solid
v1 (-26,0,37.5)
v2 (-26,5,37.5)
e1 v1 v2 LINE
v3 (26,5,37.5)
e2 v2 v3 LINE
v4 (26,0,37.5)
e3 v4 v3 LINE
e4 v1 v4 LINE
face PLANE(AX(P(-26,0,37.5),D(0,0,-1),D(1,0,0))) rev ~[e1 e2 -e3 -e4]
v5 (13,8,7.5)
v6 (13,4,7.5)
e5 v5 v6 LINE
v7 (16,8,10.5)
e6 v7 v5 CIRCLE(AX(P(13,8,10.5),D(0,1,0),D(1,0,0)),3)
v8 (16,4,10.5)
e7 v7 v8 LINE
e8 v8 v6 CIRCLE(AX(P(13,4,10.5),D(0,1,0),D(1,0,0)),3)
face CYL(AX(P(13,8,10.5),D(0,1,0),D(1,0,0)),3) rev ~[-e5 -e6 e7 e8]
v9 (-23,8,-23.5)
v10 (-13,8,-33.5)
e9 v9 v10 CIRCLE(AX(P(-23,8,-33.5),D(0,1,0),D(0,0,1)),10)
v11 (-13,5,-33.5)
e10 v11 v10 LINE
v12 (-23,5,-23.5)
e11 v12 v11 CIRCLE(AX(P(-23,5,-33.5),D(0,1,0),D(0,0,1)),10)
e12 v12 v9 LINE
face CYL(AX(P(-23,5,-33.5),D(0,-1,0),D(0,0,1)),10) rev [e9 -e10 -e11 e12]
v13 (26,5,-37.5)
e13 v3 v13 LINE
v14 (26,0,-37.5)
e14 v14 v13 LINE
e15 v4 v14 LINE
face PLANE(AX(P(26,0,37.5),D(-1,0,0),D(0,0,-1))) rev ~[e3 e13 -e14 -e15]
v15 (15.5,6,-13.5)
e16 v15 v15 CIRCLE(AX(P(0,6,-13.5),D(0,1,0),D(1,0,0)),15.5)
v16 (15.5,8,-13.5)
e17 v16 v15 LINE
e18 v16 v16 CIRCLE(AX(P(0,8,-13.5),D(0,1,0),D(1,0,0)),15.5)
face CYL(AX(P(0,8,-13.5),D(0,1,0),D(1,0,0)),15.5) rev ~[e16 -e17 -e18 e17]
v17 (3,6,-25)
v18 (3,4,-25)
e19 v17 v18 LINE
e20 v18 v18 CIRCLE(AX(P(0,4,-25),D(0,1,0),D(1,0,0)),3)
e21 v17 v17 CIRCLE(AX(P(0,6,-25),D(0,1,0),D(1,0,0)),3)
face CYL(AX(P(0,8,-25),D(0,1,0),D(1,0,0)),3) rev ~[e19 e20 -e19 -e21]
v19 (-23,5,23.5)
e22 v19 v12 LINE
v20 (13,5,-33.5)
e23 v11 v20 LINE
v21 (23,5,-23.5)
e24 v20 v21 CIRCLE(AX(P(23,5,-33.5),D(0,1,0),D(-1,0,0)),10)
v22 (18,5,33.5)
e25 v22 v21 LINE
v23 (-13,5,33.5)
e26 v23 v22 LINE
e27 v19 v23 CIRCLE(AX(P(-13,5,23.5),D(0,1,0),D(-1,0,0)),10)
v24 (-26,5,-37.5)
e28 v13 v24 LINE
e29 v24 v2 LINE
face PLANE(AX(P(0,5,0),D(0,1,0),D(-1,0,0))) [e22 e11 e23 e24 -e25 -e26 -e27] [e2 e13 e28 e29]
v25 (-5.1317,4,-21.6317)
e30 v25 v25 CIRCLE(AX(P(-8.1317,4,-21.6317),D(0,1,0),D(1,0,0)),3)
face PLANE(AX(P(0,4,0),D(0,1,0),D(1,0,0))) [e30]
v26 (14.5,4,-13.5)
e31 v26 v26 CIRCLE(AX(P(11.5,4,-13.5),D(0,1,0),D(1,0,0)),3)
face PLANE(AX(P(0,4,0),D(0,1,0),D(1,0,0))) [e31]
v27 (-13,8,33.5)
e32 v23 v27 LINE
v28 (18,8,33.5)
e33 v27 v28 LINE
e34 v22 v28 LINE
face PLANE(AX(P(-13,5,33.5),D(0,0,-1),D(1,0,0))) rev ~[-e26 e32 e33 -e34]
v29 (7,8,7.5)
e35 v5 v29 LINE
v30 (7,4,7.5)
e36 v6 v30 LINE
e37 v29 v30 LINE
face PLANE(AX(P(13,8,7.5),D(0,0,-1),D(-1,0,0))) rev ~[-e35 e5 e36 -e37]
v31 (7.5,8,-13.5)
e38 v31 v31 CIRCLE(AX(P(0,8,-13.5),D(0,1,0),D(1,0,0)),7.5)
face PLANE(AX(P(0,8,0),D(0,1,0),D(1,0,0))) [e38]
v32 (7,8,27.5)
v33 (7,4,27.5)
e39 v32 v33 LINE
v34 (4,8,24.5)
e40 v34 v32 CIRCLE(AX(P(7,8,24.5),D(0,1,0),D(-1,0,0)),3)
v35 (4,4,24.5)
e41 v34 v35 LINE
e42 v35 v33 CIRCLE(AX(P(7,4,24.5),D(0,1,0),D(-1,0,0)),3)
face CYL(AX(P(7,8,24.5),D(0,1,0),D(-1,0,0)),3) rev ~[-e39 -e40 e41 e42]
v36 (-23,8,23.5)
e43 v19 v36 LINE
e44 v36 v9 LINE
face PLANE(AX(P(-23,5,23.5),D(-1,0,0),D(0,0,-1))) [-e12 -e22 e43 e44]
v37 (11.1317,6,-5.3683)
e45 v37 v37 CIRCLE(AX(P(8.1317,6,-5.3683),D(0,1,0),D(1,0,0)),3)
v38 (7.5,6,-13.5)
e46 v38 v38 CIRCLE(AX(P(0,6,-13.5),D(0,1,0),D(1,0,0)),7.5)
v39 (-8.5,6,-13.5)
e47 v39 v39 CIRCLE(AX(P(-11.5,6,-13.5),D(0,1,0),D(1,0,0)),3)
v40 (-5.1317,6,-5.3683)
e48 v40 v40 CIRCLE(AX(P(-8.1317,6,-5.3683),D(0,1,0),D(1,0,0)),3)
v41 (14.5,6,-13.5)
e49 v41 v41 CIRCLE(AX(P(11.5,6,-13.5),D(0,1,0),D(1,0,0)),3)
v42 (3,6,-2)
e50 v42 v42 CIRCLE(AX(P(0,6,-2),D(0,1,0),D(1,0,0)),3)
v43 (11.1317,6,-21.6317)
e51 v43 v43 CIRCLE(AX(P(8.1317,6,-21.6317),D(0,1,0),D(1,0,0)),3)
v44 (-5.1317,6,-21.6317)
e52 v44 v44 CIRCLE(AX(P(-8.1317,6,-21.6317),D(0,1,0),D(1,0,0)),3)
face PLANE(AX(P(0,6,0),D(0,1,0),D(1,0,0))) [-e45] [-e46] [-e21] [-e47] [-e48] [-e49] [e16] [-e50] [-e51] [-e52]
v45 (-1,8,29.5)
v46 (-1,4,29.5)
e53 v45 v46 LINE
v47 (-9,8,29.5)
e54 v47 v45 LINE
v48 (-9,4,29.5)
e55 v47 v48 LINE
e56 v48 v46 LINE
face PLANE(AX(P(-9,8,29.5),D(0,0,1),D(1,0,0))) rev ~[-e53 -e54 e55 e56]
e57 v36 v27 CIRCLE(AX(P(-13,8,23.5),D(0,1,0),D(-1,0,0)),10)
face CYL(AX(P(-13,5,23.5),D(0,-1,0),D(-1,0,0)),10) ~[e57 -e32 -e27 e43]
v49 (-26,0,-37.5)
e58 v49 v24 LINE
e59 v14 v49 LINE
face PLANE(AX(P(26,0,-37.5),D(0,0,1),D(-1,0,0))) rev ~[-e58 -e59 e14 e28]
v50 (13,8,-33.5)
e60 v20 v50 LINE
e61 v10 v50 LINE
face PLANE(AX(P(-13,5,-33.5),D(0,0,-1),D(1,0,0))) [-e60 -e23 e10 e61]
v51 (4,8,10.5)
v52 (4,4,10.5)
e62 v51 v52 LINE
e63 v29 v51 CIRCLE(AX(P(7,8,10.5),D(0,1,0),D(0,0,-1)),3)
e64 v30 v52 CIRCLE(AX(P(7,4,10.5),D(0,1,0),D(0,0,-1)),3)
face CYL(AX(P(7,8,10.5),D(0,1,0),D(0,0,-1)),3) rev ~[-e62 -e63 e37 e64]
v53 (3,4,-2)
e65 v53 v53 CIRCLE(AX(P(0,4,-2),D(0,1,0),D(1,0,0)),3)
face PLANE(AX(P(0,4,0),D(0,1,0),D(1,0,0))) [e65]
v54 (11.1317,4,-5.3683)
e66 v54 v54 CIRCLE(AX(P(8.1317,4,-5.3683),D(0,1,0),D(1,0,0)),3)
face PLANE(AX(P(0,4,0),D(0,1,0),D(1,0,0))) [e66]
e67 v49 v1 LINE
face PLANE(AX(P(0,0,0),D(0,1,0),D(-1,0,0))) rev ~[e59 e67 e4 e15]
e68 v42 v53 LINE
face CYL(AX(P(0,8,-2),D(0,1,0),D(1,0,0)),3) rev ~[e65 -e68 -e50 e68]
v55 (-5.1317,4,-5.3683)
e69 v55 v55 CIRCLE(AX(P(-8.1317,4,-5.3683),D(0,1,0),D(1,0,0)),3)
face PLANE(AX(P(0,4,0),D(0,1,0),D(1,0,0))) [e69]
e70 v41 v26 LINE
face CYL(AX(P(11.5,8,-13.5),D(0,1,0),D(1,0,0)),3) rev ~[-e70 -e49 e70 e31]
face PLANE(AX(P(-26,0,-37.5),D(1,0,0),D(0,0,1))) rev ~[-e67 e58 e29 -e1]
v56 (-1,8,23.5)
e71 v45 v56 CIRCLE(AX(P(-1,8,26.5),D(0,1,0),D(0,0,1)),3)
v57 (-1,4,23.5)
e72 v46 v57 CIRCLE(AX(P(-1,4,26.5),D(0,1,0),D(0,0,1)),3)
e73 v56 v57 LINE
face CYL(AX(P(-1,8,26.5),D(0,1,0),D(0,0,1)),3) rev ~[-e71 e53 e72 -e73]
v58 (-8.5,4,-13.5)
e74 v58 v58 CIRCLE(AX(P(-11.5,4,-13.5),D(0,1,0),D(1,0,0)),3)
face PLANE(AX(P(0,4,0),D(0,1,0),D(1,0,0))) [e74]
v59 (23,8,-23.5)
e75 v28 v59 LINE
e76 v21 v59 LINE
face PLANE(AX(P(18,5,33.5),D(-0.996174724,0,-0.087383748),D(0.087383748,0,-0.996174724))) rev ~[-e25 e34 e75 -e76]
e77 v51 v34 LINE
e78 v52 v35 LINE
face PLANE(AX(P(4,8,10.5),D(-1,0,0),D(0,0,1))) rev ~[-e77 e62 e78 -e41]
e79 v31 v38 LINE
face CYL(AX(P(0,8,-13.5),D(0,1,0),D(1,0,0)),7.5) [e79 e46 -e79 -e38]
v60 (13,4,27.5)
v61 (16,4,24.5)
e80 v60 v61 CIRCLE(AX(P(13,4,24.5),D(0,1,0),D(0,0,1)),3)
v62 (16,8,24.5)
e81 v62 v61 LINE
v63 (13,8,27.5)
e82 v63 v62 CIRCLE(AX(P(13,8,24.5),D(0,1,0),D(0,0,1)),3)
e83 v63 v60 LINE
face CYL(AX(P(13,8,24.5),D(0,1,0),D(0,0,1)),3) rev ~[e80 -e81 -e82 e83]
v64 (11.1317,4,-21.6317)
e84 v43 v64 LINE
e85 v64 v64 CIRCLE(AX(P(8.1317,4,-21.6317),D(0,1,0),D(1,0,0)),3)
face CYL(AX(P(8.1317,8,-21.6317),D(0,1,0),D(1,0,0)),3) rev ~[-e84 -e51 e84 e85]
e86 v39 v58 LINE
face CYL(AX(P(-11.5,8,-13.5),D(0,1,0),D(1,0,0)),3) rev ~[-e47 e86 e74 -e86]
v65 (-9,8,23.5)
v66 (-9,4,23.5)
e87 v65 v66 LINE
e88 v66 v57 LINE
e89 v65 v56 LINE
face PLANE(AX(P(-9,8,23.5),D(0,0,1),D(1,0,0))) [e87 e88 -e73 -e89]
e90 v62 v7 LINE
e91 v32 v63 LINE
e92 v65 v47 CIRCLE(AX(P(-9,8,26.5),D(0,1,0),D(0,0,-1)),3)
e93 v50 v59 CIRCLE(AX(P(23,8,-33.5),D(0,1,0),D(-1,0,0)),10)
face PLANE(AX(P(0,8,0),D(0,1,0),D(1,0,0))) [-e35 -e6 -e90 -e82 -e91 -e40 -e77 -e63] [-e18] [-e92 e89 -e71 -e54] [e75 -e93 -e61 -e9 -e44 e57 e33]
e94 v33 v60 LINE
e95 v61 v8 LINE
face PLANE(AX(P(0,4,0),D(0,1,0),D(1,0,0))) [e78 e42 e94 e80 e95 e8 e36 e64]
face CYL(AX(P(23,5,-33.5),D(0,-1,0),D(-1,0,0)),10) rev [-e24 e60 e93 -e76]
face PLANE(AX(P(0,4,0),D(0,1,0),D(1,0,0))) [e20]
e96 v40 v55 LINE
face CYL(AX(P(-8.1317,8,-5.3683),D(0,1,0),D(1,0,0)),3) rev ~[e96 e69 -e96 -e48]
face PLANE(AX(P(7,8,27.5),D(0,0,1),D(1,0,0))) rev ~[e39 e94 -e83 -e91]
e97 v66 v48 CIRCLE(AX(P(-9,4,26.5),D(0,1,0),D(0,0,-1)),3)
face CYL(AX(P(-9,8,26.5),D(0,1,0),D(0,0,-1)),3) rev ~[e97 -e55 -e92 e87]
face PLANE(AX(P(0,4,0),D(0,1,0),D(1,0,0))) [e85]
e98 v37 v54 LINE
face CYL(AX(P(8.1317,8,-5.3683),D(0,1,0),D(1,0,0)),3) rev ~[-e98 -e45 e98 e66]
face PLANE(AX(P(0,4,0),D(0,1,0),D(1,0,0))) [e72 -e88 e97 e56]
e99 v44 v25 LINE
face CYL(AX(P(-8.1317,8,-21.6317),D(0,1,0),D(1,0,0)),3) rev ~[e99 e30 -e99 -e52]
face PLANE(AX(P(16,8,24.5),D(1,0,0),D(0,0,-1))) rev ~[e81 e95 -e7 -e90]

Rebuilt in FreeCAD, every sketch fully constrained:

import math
import FreeCAD as App
import Part
import Sketcher
from FreeCAD import Vector


def add_polygon(sketch, points):
    """Adds a closed chain of lines whose ends are joined by coincident constraints."""
    first, n = sketch.GeometryCount, len(points)
    for a, b in zip(points, points[1:] + points[:1]):
        sketch.addGeometry(Part.LineSegment(App.Vector(*a, 0), App.Vector(*b, 0)), False)
    for i in range(n):
        sketch.addConstraint(Sketcher.Constraint("Coincident", first + i, 2, first + (i + 1) % n, 1))

doc = App.newDocument("Part")
body = doc.addObject("PartDesign::Body", "Body")

sketch1 = body.newObject("Sketcher::SketchObject", "Sketch")
sketch1.AttachmentSupport = (doc.getObject("XZ_Plane"), [""])
sketch1.MapMode = "FlatFace"
add_polygon(sketch1, [(-26, -38), (-26, 38), (26, 38), (26, -38)])
sketch1.addConstraint(Sketcher.Constraint("Vertical", 0))
sketch1.addConstraint(Sketcher.Constraint("Horizontal", 1))
sketch1.addConstraint(Sketcher.Constraint("Vertical", 2))
sketch1.addConstraint(Sketcher.Constraint("Horizontal", 3))
sketch1.addConstraint(Sketcher.Constraint("Symmetric", 0, 2, 2, 2, -1, 1))
sketch1.addConstraint(Sketcher.Constraint("DistanceX", 1, 1, 1, 2, 52.0))
sketch1.addConstraint(Sketcher.Constraint("DistanceY", 0, 1, 0, 2, 75.0))
pad1 = body.newObject("PartDesign::Pad", "Pad")
pad1.Profile = sketch1
pad1.Length = 5
pad1.Reversed = True

sketch2 = body.newObject("Sketcher::SketchObject", "Sketch001")
sketch2.AttachmentSupport = (doc.getObject("XZ_Plane"), [""])
sketch2.MapMode = "FlatFace"
sketch2.AttachmentOffset = App.Placement(Vector(0, 0, -5), App.Rotation())
sketch2.addGeometry(Part.ArcOfCircle(Part.Circle(Vector(-13, 24, 0), Vector(0, 0, 1), 10), math.radians(90), math.radians(180)), False)
sketch2.addGeometry(Part.LineSegment(Vector(-13, 34, 0), Vector(18, 34, 0)), False)
sketch2.addGeometry(Part.LineSegment(Vector(18, 34, 0), Vector(23, -24, 0)), False)
sketch2.addGeometry(Part.ArcOfCircle(Part.Circle(Vector(23, -34, 0), Vector(0, 0, 1), 10), math.radians(90), math.radians(180)), False)
sketch2.addGeometry(Part.LineSegment(Vector(13, -34, 0), Vector(-13, -34, 0)), False)
sketch2.addGeometry(Part.ArcOfCircle(Part.Circle(Vector(-23, -34, 0), Vector(0, 0, 1), 10), math.radians(0), math.radians(90)), False)
sketch2.addGeometry(Part.LineSegment(Vector(-23, -24, 0), Vector(-23, 24, 0)), False)
sketch2.addConstraint(Sketcher.Constraint("Tangent", 0, 1, 1, 1))
sketch2.addConstraint(Sketcher.Constraint("Coincident", 1, 2, 2, 1))
sketch2.addConstraint(Sketcher.Constraint("Coincident", 2, 2, 3, 1))
sketch2.addConstraint(Sketcher.Constraint("Coincident", 3, 2, 4, 1))
sketch2.addConstraint(Sketcher.Constraint("Coincident", 4, 2, 5, 1))
sketch2.addConstraint(Sketcher.Constraint("Coincident", 5, 2, 6, 1))
sketch2.addConstraint(Sketcher.Constraint("Tangent", 6, 2, 0, 2))
sketch2.addConstraint(Sketcher.Constraint("Horizontal", 1))
sketch2.addConstraint(Sketcher.Constraint("Horizontal", 4))
sketch2.addConstraint(Sketcher.Constraint("Vertical", 6))
sketch2.addConstraint(Sketcher.Constraint("Equal", 0, 3))
sketch2.addConstraint(Sketcher.Constraint("Equal", 3, 5))
sketch2.addConstraint(Sketcher.Constraint("Symmetric", 0, 1, 3, 2, -1, 1))
sketch2.addConstraint(Sketcher.Constraint("Symmetric", 2, 2, 6, 2, -1, 1))
sketch2.addConstraint(Sketcher.Constraint("Symmetric", 3, 3, 5, 3, -2))
sketch2.addConstraint(Sketcher.Constraint("Radius", 0, 10.0))
sketch2.addConstraint(Sketcher.Constraint("DistanceX", 1, 1, 1, 2, 31.0))
sketch2.addConstraint(Sketcher.Constraint("DistanceX", 4, 2, 4, 1, 26.0))
sketch2.addConstraint(Sketcher.Constraint("DistanceY", 6, 1, 6, 2, 47.0))
pad2 = body.newObject("PartDesign::Pad", "Pad001")
pad2.Profile = sketch2
pad2.Length = 3
pad2.Reversed = True

sketch3 = body.newObject("Sketcher::SketchObject", "Sketch002")
sketch3.AttachmentSupport = (doc.getObject("XZ_Plane"), [""])
sketch3.MapMode = "FlatFace"
sketch3.AttachmentOffset = App.Placement(Vector(0, 0, -8), App.Rotation())
sketch3.addGeometry(Part.ArcOfCircle(Part.Circle(Vector(7, 10.5, 0), Vector(0, 0, 1), 3), math.radians(180), math.radians(270)), False)
sketch3.addGeometry(Part.LineSegment(Vector(4, 10.5, 0), Vector(4, 24.5, 0)), False)
sketch3.addGeometry(Part.ArcOfCircle(Part.Circle(Vector(7, 24.5, 0), Vector(0, 0, 1), 3), math.radians(90), math.radians(180)), False)
sketch3.addGeometry(Part.LineSegment(Vector(7, 27.5, 0), Vector(13, 27.5, 0)), False)
sketch3.addGeometry(Part.ArcOfCircle(Part.Circle(Vector(13, 24.5, 0), Vector(0, 0, 1), 3), math.radians(0), math.radians(90)), False)
sketch3.addGeometry(Part.LineSegment(Vector(16, 24.5, 0), Vector(16, 10.5, 0)), False)
sketch3.addGeometry(Part.ArcOfCircle(Part.Circle(Vector(13, 10.5, 0), Vector(0, 0, 1), 3), math.radians(-90), math.radians(0)), False)
sketch3.addGeometry(Part.LineSegment(Vector(13, 7.5, 0), Vector(7, 7.5, 0)), False)
sketch3.addGeometry(Part.LineSegment(Vector(-1, 23.5, 0), Vector(-9, 23.5, 0)), False)
sketch3.addGeometry(Part.ArcOfCircle(Part.Circle(Vector(-9, 26.5, 0), Vector(0, 0, 1), 3), math.radians(90), math.radians(270)), False)
sketch3.addGeometry(Part.LineSegment(Vector(-9, 29.5, 0), Vector(-1, 29.5, 0)), False)
sketch3.addGeometry(Part.ArcOfCircle(Part.Circle(Vector(-1, 26.5, 0), Vector(0, 0, 1), 3), math.radians(-90), math.radians(90)), False)
sketch3.addGeometry(Part.Circle(Vector(0, -2, 0), Vector(0, 0, 1), 3), False)
sketch3.addGeometry(Part.Circle(Vector(-8.1, -5.4, 0), Vector(0, 0, 1), 3), False)
sketch3.addGeometry(Part.Circle(Vector(-11.5, -13.5, 0), Vector(0, 0, 1), 3), False)
sketch3.addGeometry(Part.Circle(Vector(-8.1, -21.6, 0), Vector(0, 0, 1), 3), False)
sketch3.addGeometry(Part.Circle(Vector(0, -25, 0), Vector(0, 0, 1), 3), False)
sketch3.addGeometry(Part.Circle(Vector(8.1, -21.6, 0), Vector(0, 0, 1), 3), False)
sketch3.addGeometry(Part.Circle(Vector(11.5, -13.5, 0), Vector(0, 0, 1), 3), False)
sketch3.addGeometry(Part.Circle(Vector(8.1, -5.4, 0), Vector(0, 0, 1), 3), False)
sketch3.addConstraint(Sketcher.Constraint("Tangent", 0, 1, 1, 1))
sketch3.addConstraint(Sketcher.Constraint("Tangent", 1, 2, 2, 2))
sketch3.addConstraint(Sketcher.Constraint("Tangent", 2, 1, 3, 1))
sketch3.addConstraint(Sketcher.Constraint("Tangent", 3, 2, 4, 2))
sketch3.addConstraint(Sketcher.Constraint("Tangent", 4, 1, 5, 1))
sketch3.addConstraint(Sketcher.Constraint("Tangent", 5, 2, 6, 2))
sketch3.addConstraint(Sketcher.Constraint("Tangent", 6, 1, 7, 1))
sketch3.addConstraint(Sketcher.Constraint("Tangent", 7, 2, 0, 2))
sketch3.addConstraint(Sketcher.Constraint("Tangent", 8, 2, 9, 2))
sketch3.addConstraint(Sketcher.Constraint("Tangent", 9, 1, 10, 1))
sketch3.addConstraint(Sketcher.Constraint("Tangent", 10, 2, 11, 2))
sketch3.addConstraint(Sketcher.Constraint("Tangent", 11, 1, 8, 1))
sketch3.addConstraint(Sketcher.Constraint("Vertical", 1))
sketch3.addConstraint(Sketcher.Constraint("Horizontal", 3))
sketch3.addConstraint(Sketcher.Constraint("Vertical", 5))
sketch3.addConstraint(Sketcher.Constraint("Horizontal", 7))
sketch3.addConstraint(Sketcher.Constraint("Horizontal", 8))
sketch3.addConstraint(Sketcher.Constraint("Horizontal", 10))
sketch3.addConstraint(Sketcher.Constraint("Equal", 0, 2))
sketch3.addConstraint(Sketcher.Constraint("Equal", 2, 4))
sketch3.addConstraint(Sketcher.Constraint("Equal", 4, 6))
sketch3.addConstraint(Sketcher.Constraint("Equal", 6, 9))
sketch3.addConstraint(Sketcher.Constraint("Equal", 11, 12))
sketch3.addConstraint(Sketcher.Constraint("Equal", 12, 13))
sketch3.addConstraint(Sketcher.Constraint("Equal", 13, 14))
sketch3.addConstraint(Sketcher.Constraint("Equal", 14, 15))
sketch3.addConstraint(Sketcher.Constraint("Equal", 15, 16))
sketch3.addConstraint(Sketcher.Constraint("Equal", 16, 17))
sketch3.addConstraint(Sketcher.Constraint("Equal", 17, 18))
sketch3.addConstraint(Sketcher.Constraint("Equal", 18, 19))
sketch3.addConstraint(Sketcher.Constraint("Symmetric", 15, 3, 17, 3, -2))
sketch3.addConstraint(Sketcher.Constraint("Symmetric", 14, 3, 18, 3, -2))
sketch3.addConstraint(Sketcher.Constraint("Symmetric", 13, 3, 19, 3, -2))
sketch3.addConstraint(Sketcher.Constraint("PointOnObject", 12, 3, -2))
sketch3.addConstraint(Sketcher.Constraint("PointOnObject", 16, 3, -2))
sketch3.addConstraint(Sketcher.Constraint("Vertical", 13, 3, 15, 3))
sketch3.addConstraint(Sketcher.Constraint("Diameter", 12, 6.0))
sketch3.addConstraint(Sketcher.Constraint("DistanceX", 3, 1, 3, 2, 6.0))
sketch3.addConstraint(Sketcher.Constraint("DistanceX", 9, 3, 4, 3, 22.0))
sketch3.addConstraint(Sketcher.Constraint("DistanceX", 14, 3, -1, 1, 11.5))
sketch3.addConstraint(Sketcher.Constraint("DistanceY", 14, 3, 12, 3, 11.5))
sketch3.addConstraint(Sketcher.Constraint("DistanceY", 16, 3, 14, 3, 11.5))
sketch3.addConstraint(Sketcher.Constraint("DistanceX", 8, 2, 8, 1, 8.0))
sketch3.addConstraint(Sketcher.Constraint("DistanceY", 1, 1, 1, 2, 14.0))
sketch3.addConstraint(Sketcher.Constraint("DistanceX", -1, 1, 0, 3, 7.0))
sketch3.addConstraint(Sketcher.Constraint("DistanceY", 12, 3, -1, 1, 2.0))
sketch3.addConstraint(Sketcher.Constraint("DistanceY", 2, 3, 9, 3, 2.0))
sketch3.addConstraint(Sketcher.Constraint("DistanceY", 14, 3, 0, 3, 24.0))
sketch3.addConstraint(Sketcher.Constraint("DistanceX", 13, 3, -1, 1, 8.1317))
sketch3.addConstraint(Sketcher.Constraint("DistanceY", 13, 3, -1, 1, 5.3683))
sketch3.addConstraint(Sketcher.Constraint("DistanceY", 15, 3, -1, 1, 21.6317))
pocket1 = body.newObject("PartDesign::Pocket", "Pocket")
pocket1.Profile = sketch3
pocket1.Length = 4
pocket1.Reversed = True

sketch4 = body.newObject("Sketcher::SketchObject", "Sketch003")
sketch4.AttachmentSupport = (doc.getObject("XZ_Plane"), [""])
sketch4.MapMode = "FlatFace"
sketch4.AttachmentOffset = App.Placement(Vector(0, 0, -8), App.Rotation())
sketch4.addGeometry(Part.Circle(Vector(0, -14, 0), Vector(0, 0, 1), 16), False)
sketch4.addGeometry(Part.Circle(Vector(0, -14, 0), Vector(0, 0, 1), 8), False)
sketch4.addConstraint(Sketcher.Constraint("Coincident", 1, 3, 0, 3))
sketch4.addConstraint(Sketcher.Constraint("PointOnObject", 0, 3, -2))
sketch4.addConstraint(Sketcher.Constraint("Diameter", 0, 31.0))
sketch4.addConstraint(Sketcher.Constraint("Diameter", 1, 15.0))
sketch4.addConstraint(Sketcher.Constraint("DistanceY", 0, 3, -1, 1, 13.5))
pocket2 = body.newObject("PartDesign::Pocket", "Pocket001")
pocket2.Profile = sketch4
pocket2.Length = 2
pocket2.Reversed = True

doc.recompute()
